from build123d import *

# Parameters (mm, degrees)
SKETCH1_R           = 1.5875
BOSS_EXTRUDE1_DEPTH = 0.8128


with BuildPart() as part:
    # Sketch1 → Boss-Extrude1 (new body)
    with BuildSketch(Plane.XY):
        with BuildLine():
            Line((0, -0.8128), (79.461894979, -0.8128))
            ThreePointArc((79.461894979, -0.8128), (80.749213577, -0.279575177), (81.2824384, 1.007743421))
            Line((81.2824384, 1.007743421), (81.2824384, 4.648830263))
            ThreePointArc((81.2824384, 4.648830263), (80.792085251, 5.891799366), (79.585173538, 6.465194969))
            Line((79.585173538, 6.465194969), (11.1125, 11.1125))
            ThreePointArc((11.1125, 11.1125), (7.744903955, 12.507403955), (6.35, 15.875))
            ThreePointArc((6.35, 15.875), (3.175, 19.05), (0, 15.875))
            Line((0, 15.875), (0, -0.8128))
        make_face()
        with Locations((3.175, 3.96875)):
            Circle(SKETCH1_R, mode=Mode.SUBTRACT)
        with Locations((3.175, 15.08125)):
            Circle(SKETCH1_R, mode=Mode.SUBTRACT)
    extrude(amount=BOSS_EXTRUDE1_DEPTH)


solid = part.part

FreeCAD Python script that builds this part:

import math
import FreeCAD as App
import Part
import Sketcher
Q = App.Units.Quantity

doc = App.newDocument("Part")
body = doc.addObject("PartDesign::Body", "Body")

# Sketch on XY plane
sketch1 = body.newObject("Sketcher::SketchObject", "Sketch")
sketch1.AttachmentSupport = (doc.getObject("XY_Plane"), [""])
sketch1.MapMode = "FlatFace"
sketch1.addGeometry(Part.LineSegment(App.Vector(0, -0.8, 0), App.Vector(79.5, -0.8, 0)), False)
sketch1.addGeometry(Part.ArcOfCircle(Part.Circle(App.Vector(79.5, 1, 0), App.Vector(0, 0, 1), 1.8), math.radians(-90), math.radians(0)), False)
sketch1.addGeometry(Part.LineSegment(App.Vector(81.3, 1, 0), App.Vector(81.3, 4.6, 0)), False)
sketch1.addGeometry(Part.ArcOfCircle(Part.Circle(App.Vector(79.5, 4.6, 0), App.Vector(0, 0, 1), 1.8), math.radians(0), math.radians(86)), False)
sketch1.addGeometry(Part.LineSegment(App.Vector(79.6, 6.5, 0), App.Vector(11.1, 11.1, 0)), False)
sketch1.addGeometry(Part.ArcOfCircle(Part.Circle(App.Vector(11.1, 15.9, 0), App.Vector(0, 0, 1), 4.8), math.radians(-180), math.radians(-90)), False)
sketch1.addGeometry(Part.ArcOfCircle(Part.Circle(App.Vector(3.2, 15.9, 0), App.Vector(0, 0, 1), 3.2), math.radians(0), math.radians(180)), False)
sketch1.addGeometry(Part.LineSegment(App.Vector(0, 15.9, 0), App.Vector(0, -0.8, 0)), False)
sketch1.addGeometry(Part.Circle(App.Vector(3.2, 4, 0), App.Vector(0, 0, 1), 1.6), False)
sketch1.addGeometry(Part.Circle(App.Vector(3.2, 15.1, 0), App.Vector(0, 0, 1), 1.6), False)
sketch1.addConstraint(Sketcher.Constraint("Tangent", 0, 2, 1, 1))
sketch1.addConstraint(Sketcher.Constraint("Tangent", 1, 2, 2, 1))
sketch1.addConstraint(Sketcher.Constraint("Tangent", 2, 2, 3, 1))
sketch1.addConstraint(Sketcher.Constraint("Tangent", 3, 2, 4, 1))
sketch1.addConstraint(Sketcher.Constraint("Coincident", 4, 2, 5, 2))
sketch1.addConstraint(Sketcher.Constraint("Tangent", 5, 1, 6, 1))
sketch1.addConstraint(Sketcher.Constraint("Tangent", 6, 2, 7, 1))
sketch1.addConstraint(Sketcher.Constraint("Coincident", 7, 2, 0, 1))
sketch1.addConstraint(Sketcher.Constraint("Horizontal", 0))
sketch1.addConstraint(Sketcher.Constraint("Vertical", 2))
sketch1.addConstraint(Sketcher.Constraint("Vertical", 7))
sketch1.addConstraint(Sketcher.Constraint("Equal", 1, 3))
sketch1.addConstraint(Sketcher.Constraint("Equal", 8, 9))
sketch1.addConstraint(Sketcher.Constraint("PointOnObject", 6, 2, -2))
sketch1.addConstraint(Sketcher.Constraint("Horizontal", 5, 3, 6, 3))
sketch1.addConstraint(Sketcher.Constraint("Vertical", 6, 3, 8, 3))
sketch1.addConstraint(Sketcher.Constraint("Vertical", 8, 3, 9, 3))
sketch1.addConstraint(Sketcher.Constraint("Vertical", 5, 3, 4, 2))
sketch1.addConstraint(Sketcher.Constraint("Diameter", 8, Q("0.125 in")))
sketch1.addConstraint(Sketcher.Constraint("Radius", 5, Q("0.1875 in")))
sketch1.addConstraint(Sketcher.Constraint("Radius", 6, Q("0.125 in")))
sketch1.addConstraint(Sketcher.Constraint("DistanceY", 7, 2, 7, 1, Q("0.657 in")))
sketch1.addConstraint(Sketcher.Constraint("DistanceY", -1, 1, 5, 3, Q("0.625 in")))
sketch1.addConstraint(Sketcher.Constraint("DistanceY", -1, 1, 8, 3, Q("0.15625 in")))
sketch1.addConstraint(Sketcher.Constraint("DistanceY", -1, 1, 9, 3, Q("0.59375 in")))
sketch1.addConstraint(Sketcher.Constraint("Radius", 1, Q("1.820543 mm")))
sketch1.addConstraint(Sketcher.Constraint("Distance", 4, Q("68.630201 mm")))
sketch1.addConstraint(Sketcher.Constraint("DistanceX", 0, 1, 0, 2, Q("79.461895 mm")))
pad1 = body.newObject("PartDesign::Pad", "Pad")
pad1.Profile = sketch1
pad1.Length = Q("0.032 in")

doc.recompute()
